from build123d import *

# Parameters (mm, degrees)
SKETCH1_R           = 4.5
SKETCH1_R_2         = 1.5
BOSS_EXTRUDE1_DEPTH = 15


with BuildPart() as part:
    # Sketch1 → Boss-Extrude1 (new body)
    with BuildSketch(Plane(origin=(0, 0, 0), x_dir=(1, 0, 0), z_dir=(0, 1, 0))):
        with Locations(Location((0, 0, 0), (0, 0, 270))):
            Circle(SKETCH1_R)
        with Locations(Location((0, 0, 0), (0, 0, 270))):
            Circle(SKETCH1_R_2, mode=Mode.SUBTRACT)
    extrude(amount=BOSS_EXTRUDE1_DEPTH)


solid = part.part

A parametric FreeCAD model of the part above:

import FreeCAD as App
import Part
import Sketcher
from FreeCAD import Vector

doc = App.newDocument("Part")
body = doc.addObject("PartDesign::Body", "Body")

sketch1 = doc.addObject("Sketcher::SketchObject", "Sketch")
body.addObject(sketch1)
sketch1.AttachmentSupport = (doc.XZ_Plane, [""])
sketch1.MapMode = "FlatFace"
sketch1.addGeometry([
    Part.Circle(Vector(0, 0, 0), Vector(0, 0, 1), 4.5),
    Part.Circle(Vector(0, 0, 0), Vector(0, 0, 1), 1.5),
], False)
sketch1.addConstraint([
    Sketcher.Constraint("Coincident", 0, 3, -1, 1),
    Sketcher.Constraint("Coincident", 1, 3, -1, 1),
    Sketcher.Constraint("Diameter", 0, 9.0),
    Sketcher.Constraint("Diameter", 1, 3.0),
])
pad1 = doc.addObject("PartDesign::Pad", "Pad")
body.addObject(pad1)
pad1.Profile = sketch1
pad1.Length = 15
pad1.Reversed = True

doc.recompute()
